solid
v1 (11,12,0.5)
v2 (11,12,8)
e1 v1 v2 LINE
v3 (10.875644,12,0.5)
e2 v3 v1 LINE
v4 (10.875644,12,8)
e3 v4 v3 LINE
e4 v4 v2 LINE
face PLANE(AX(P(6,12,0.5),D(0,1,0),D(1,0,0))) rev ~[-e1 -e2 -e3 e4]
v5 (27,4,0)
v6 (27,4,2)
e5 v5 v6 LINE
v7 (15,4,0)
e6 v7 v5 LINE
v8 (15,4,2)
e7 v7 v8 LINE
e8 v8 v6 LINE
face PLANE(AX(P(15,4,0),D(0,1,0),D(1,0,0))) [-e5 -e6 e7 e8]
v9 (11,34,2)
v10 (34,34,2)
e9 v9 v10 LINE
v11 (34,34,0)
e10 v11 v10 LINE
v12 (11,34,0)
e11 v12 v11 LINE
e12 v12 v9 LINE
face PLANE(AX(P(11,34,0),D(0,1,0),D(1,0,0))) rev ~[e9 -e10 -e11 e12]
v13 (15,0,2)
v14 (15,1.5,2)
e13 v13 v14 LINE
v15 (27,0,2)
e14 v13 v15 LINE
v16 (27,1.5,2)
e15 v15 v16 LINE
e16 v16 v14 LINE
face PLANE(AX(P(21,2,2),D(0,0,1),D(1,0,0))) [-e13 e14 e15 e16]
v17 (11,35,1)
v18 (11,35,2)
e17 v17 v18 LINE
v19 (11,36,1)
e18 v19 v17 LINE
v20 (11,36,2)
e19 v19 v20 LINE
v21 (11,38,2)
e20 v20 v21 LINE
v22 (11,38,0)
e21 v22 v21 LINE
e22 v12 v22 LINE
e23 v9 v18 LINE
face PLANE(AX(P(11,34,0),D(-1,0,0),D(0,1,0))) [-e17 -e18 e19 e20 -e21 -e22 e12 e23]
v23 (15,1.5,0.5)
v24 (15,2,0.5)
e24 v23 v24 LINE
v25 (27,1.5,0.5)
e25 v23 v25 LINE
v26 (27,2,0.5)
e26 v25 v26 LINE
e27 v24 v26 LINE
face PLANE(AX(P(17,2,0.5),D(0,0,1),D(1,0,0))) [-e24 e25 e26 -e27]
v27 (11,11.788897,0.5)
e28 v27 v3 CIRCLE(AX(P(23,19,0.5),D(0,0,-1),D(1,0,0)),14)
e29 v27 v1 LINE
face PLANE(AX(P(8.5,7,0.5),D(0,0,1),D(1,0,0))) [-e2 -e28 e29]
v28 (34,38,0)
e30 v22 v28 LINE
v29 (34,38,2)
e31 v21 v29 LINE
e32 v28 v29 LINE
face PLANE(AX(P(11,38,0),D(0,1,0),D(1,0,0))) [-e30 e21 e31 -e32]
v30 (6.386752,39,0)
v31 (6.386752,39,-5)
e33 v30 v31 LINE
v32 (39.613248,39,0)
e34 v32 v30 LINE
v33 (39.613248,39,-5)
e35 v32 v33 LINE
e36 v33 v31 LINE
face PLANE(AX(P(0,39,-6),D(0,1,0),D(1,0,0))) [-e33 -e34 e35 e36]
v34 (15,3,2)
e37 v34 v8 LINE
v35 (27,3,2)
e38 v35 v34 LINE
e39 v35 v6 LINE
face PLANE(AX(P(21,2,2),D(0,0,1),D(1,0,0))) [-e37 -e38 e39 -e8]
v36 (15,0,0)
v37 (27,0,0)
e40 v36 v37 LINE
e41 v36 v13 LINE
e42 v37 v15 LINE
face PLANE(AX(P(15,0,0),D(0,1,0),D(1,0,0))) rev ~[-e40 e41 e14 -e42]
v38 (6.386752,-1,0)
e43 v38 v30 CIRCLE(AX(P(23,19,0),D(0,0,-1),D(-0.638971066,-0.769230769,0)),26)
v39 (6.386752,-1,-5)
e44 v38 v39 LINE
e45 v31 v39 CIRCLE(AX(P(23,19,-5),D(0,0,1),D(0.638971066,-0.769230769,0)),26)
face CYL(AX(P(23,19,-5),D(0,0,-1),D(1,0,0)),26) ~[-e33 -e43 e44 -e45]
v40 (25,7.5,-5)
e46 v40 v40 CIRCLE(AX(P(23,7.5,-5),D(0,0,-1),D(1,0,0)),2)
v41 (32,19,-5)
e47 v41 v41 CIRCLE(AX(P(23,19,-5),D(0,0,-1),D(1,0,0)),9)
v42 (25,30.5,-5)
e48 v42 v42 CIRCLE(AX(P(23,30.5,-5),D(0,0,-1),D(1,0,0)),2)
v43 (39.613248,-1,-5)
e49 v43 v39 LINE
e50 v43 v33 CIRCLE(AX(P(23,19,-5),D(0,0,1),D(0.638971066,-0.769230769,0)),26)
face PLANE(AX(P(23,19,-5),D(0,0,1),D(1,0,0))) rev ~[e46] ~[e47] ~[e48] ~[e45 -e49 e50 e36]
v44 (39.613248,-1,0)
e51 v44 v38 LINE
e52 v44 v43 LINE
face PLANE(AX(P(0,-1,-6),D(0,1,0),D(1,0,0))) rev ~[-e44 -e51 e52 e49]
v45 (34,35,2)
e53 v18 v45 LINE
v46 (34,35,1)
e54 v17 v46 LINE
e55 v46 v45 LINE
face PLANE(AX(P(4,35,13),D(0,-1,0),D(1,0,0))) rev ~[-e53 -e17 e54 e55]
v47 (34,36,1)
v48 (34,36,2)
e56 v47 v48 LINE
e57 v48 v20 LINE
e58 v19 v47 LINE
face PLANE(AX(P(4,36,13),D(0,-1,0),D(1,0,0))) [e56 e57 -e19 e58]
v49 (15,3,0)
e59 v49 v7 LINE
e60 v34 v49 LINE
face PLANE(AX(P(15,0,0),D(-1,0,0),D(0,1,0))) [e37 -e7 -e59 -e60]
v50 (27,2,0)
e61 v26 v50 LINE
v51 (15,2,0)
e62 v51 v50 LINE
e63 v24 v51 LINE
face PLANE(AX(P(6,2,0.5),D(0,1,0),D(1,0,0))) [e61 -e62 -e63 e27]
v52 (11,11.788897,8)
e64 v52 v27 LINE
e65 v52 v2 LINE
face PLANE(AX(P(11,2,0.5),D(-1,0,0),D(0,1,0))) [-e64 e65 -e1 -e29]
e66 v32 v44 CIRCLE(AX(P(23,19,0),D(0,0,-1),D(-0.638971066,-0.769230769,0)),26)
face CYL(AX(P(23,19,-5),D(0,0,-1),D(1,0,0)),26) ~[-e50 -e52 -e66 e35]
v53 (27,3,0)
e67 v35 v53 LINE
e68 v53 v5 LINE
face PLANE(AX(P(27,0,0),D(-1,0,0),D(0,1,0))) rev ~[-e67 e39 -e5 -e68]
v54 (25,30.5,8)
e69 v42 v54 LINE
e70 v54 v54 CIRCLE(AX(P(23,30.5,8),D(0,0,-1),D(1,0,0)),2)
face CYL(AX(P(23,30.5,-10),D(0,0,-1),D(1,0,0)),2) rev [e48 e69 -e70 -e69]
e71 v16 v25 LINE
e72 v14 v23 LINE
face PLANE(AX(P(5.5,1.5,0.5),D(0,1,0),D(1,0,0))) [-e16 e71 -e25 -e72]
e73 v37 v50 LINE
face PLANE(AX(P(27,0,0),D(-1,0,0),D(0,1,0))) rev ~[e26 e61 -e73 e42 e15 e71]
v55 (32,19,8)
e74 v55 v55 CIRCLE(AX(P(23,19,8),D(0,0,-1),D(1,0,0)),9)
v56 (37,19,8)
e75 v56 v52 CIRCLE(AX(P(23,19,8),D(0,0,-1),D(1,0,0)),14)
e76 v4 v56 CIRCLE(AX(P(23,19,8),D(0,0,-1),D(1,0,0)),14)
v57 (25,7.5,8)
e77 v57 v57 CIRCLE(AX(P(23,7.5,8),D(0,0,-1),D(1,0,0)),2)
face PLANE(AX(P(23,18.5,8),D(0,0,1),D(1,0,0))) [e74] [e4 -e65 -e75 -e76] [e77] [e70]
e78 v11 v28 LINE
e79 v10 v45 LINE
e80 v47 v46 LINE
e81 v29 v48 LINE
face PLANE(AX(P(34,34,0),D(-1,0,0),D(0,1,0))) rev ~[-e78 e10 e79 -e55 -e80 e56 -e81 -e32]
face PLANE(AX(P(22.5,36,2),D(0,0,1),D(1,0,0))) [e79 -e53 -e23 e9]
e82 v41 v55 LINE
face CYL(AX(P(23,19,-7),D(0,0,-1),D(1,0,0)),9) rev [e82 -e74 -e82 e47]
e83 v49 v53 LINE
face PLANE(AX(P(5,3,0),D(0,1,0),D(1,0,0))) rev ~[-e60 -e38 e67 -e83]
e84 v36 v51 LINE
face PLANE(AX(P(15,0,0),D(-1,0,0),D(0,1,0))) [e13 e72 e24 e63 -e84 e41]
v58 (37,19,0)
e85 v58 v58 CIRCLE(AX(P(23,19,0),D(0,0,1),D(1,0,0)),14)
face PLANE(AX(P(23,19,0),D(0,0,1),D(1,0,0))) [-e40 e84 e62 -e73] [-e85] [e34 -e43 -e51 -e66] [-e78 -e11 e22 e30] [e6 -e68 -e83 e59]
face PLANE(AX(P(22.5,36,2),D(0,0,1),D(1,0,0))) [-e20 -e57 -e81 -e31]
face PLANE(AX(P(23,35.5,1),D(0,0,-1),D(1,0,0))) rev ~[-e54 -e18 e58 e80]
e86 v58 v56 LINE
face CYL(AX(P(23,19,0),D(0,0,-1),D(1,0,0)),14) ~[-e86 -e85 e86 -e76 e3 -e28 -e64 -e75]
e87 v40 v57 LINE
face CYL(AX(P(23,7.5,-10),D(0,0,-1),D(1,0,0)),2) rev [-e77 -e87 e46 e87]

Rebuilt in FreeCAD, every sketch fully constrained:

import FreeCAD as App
import Part
import Sketcher
from FreeCAD import Vector
Q = App.Units.Quantity

doc = App.newDocument("Part")
params = doc.addObject("Spreadsheet::Sheet", "Params")
for row, (alias, value) in enumerate([
    ("sketch1_diameter", "4 mm"),
    ("pad1_length", "22 mm"),
    ("sketch2_diameter", "4 mm"),
    ("pad2_length", "22 mm"),
    ("sketch3_width", "46 mm"),
    ("sketch3_height", "10 mm"),
    ("pad3_length", "10 mm"),
    ("sketch4_width", "46 mm"),
    ("sketch4_height", "10 mm"),
    ("pad4_length", "10 mm"),
    ("sketch5_width", "54 mm"),
    ("sketch5_height", "53 mm"),
    ("pad5_length", "15 mm"),
    ("sketch6_width", "5 mm"),
    ("sketch6_height", "10 mm"),
    ("pad6_length", "13 mm"),
    ("sketch7_width", "23 mm"),
    ("sketch7_height", "1 mm"),
    ("pad7_length", "13 mm"),
    ("sketch8_width", "25 mm"),
    ("sketch8_height", "1 mm"),
    ("pad8_length", "14 mm"),
    ("sketch9_width", "38 mm"),
    ("sketch9_height", "1 mm"),
    ("pad9_length", "12 mm"),
    ("sketch10_width", "34 mm"),
    ("sketch10_height", "1 mm"),
    ("pad10_length", "10 mm"),
    ("sketch11_diameter", "18 mm"),
    ("pad11_length", "28 mm"),
    ("sketch12_diameter", "52 mm"),
    ("pad12_length", "5 mm"),
    ("sketch13_diameter", "28 mm"),
    ("pad13_length", "14 mm"),
    ("sketch14_diameter", "52 mm"),
    ("pad14_length", "5 mm"),
    ("sketch15_width", "23 mm"),
    ("sketch15_height", "4 mm"),
    ("pad15_length", "2 mm"),
    ("sketch16_width", "12 mm"),
    ("sketch16_height", "4 mm"),
    ("pad16_length", "2 mm"),
], start=1):
    params.set(f"A{row}", alias)
    params.set(f"B{row}", "=" + value)
    params.setAlias(f"B{row}", alias)

body = doc.addObject("PartDesign::Body", "Body")

# Sketch on XY plane
sketch1 = body.newObject("Sketcher::SketchObject", "Sketch")
sketch1.AttachmentSupport = (doc.getObject("XY_Plane"), [""])
sketch1.MapMode = "FlatFace"
sketch1.AttachmentOffset = App.Placement(Vector(0, 0, -10), App.Rotation())
sketch1.addGeometry(Part.Circle(Vector(23, 7.5, 0), Vector(0, 0, 1), 2), False)
sketch1.addConstraint([
    Sketcher.Constraint("Diameter", 0, Q("4 mm")),
    Sketcher.Constraint("DistanceX", -1, 1, 0, 3, Q("23 mm")),
    Sketcher.Constraint("DistanceY", -1, 1, 0, 3, Q("7.5 mm")),
])
sketch1.setExpression("Constraints[0]", "Params.sketch1_diameter")
pad1 = body.newObject("PartDesign::Pad", "Pad")
pad1.Profile = sketch1
pad1.setExpression("Length", "Params.pad1_length")
body2 = doc.addObject("PartDesign::Body", "Body001")

# Sketch on XY plane
sketch2 = body2.newObject("Sketcher::SketchObject", "Sketch001")
sketch2.AttachmentSupport = (doc.getObject("XY_Plane001"), [""])
sketch2.MapMode = "FlatFace"
sketch2.AttachmentOffset = App.Placement(Vector(0, 0, -10), App.Rotation())
sketch2.addGeometry(Part.Circle(Vector(23, 30.5, 0), Vector(0, 0, 1), 2), False)
sketch2.addConstraint([
    Sketcher.Constraint("Diameter", 0, Q("4 mm")),
    Sketcher.Constraint("DistanceX", -1, 1, 0, 3, Q("23 mm")),
    Sketcher.Constraint("DistanceY", -1, 1, 0, 3, Q("30.5 mm")),
])
sketch2.setExpression("Constraints[0]", "Params.sketch2_diameter")
pad2 = body2.newObject("PartDesign::Pad", "Pad001")
pad2.Profile = sketch2
pad2.setExpression("Length", "Params.pad2_length")
body3 = doc.addObject("PartDesign::Body", "Body002")

# Sketch on XY plane
sketch3 = body3.newObject("Sketcher::SketchObject", "Sketch002")
sketch3.AttachmentSupport = (doc.getObject("XY_Plane002"), [""])
sketch3.MapMode = "FlatFace"
sketch3.AttachmentOffset = App.Placement(Vector(0, 0, -6), App.Rotation())
sketch3.addGeometry([
    Part.LineSegment(Vector(0, 49, 0), Vector(0, 39, 0)),
    Part.LineSegment(Vector(0, 39, 0), Vector(46, 39, 0)),
    Part.LineSegment(Vector(46, 39, 0), Vector(46, 49, 0)),
    Part.LineSegment(Vector(46, 49, 0), Vector(0, 49, 0)),
], False)
sketch3.addConstraint([
    Sketcher.Constraint("Coincident", 0, 2, 1, 1),
    Sketcher.Constraint("Coincident", 1, 2, 2, 1),
    Sketcher.Constraint("Coincident", 2, 2, 3, 1),
    Sketcher.Constraint("Coincident", 3, 2, 0, 1),
    Sketcher.Constraint("Vertical", 0),
    Sketcher.Constraint("Horizontal", 1),
    Sketcher.Constraint("Vertical", 2),
    Sketcher.Constraint("Horizontal", 3),
    Sketcher.Constraint("PointOnObject", 0, 2, -2),
    Sketcher.Constraint("DistanceX", 1, 1, 1, 2, Q("46 mm")),
    Sketcher.Constraint("DistanceY", 0, 2, 0, 1, Q("10 mm")),
    Sketcher.Constraint("DistanceY", -1, 1, 0, 2, Q("39 mm")),
])
sketch3.setExpression("Constraints[9]", "Params.sketch3_width")
sketch3.setExpression("Constraints[10]", "Params.sketch3_height")
pad3 = body3.newObject("PartDesign::Pad", "Pad002")
pad3.Profile = sketch3
pad3.setExpression("Length", "Params.pad3_length")
body4 = doc.addObject("PartDesign::Body", "Body003")

# Sketch on XY plane
sketch4 = body4.newObject("Sketcher::SketchObject", "Sketch003")
sketch4.AttachmentSupport = (doc.getObject("XY_Plane003"), [""])
sketch4.MapMode = "FlatFace"
sketch4.AttachmentOffset = App.Placement(Vector(0, 0, -6), App.Rotation())
sketch4.addGeometry([
    Part.LineSegment(Vector(0, -1, 0), Vector(0, -11, 0)),
    Part.LineSegment(Vector(0, -11, 0), Vector(46, -11, 0)),
    Part.LineSegment(Vector(46, -11, 0), Vector(46, -1, 0)),
    Part.LineSegment(Vector(46, -1, 0), Vector(0, -1, 0)),
], False)
sketch4.addConstraint([
    Sketcher.Constraint("Coincident", 0, 2, 1, 1),
    Sketcher.Constraint("Coincident", 1, 2, 2, 1),
    Sketcher.Constraint("Coincident", 2, 2, 3, 1),
    Sketcher.Constraint("Coincident", 3, 2, 0, 1),
    Sketcher.Constraint("Vertical", 0),
    Sketcher.Constraint("Horizontal", 1),
    Sketcher.Constraint("Vertical", 2),
    Sketcher.Constraint("Horizontal", 3),
    Sketcher.Constraint("PointOnObject", 0, 2, -2),
    Sketcher.Constraint("DistanceX", 1, 1, 1, 2, Q("46 mm")),
    Sketcher.Constraint("DistanceY", 0, 2, 0, 1, Q("10 mm")),
    Sketcher.Constraint("DistanceY", 0, 2, -1, 1, Q("11 mm")),
])
sketch4.setExpression("Constraints[9]", "Params.sketch4_width")
sketch4.setExpression("Constraints[10]", "Params.sketch4_height")
pad4 = body4.newObject("PartDesign::Pad", "Pad003")
pad4.Profile = sketch4
pad4.setExpression("Length", "Params.pad4_length")
body5 = doc.addObject("PartDesign::Body", "Body004")

# Sketch on XY plane
sketch5 = body5.newObject("Sketcher::SketchObject", "Sketch004")
sketch5.AttachmentSupport = (doc.getObject("XY_Plane004"), [""])
sketch5.MapMode = "FlatFace"
sketch5.AttachmentOffset = App.Placement(Vector(0, 0, 8), App.Rotation())
sketch5.addGeometry([
    Part.LineSegment(Vector(-4, 45, 0), Vector(-4, -8, 0)),
    Part.LineSegment(Vector(-4, -8, 0), Vector(50, -8, 0)),
    Part.LineSegment(Vector(50, -8, 0), Vector(50, 45, 0)),
    Part.LineSegment(Vector(50, 45, 0), Vector(-4, 45, 0)),
], False)
sketch5.addConstraint([
    Sketcher.Constraint("Coincident", 0, 2, 1, 1),
    Sketcher.Constraint("Coincident", 1, 2, 2, 1),
    Sketcher.Constraint("Coincident", 2, 2, 3, 1),
    Sketcher.Constraint("Coincident", 3, 2, 0, 1),
    Sketcher.Constraint("Vertical", 0),
    Sketcher.Constraint("Horizontal", 1),
    Sketcher.Constraint("Vertical", 2),
    Sketcher.Constraint("Horizontal", 3),
    Sketcher.Constraint("DistanceX", 1, 1, 1, 2, Q("54 mm")),
    Sketcher.Constraint("DistanceY", 0, 2, 0, 1, Q("53 mm")),
    Sketcher.Constraint("DistanceX", 0, 2, -1, 1, Q("4 mm")),
    Sketcher.Constraint("DistanceY", 0, 2, -1, 1, Q("8 mm")),
])
sketch5.setExpression("Constraints[8]", "Params.sketch5_width")
sketch5.setExpression("Constraints[9]", "Params.sketch5_height")
pad5 = body5.newObject("PartDesign::Pad", "Pad004")
pad5.Profile = sketch5
pad5.setExpression("Length", "Params.pad5_length")
body6 = doc.addObject("PartDesign::Body", "Body005")

# Sketch on XY plane
sketch6 = body6.newObject("Sketcher::SketchObject", "Sketch005")
sketch6.AttachmentSupport = (doc.getObject("XY_Plane005"), [""])
sketch6.MapMode = "FlatFace"
sketch6.AttachmentOffset = App.Placement(Vector(0, 0, 0.5), App.Rotation())
sketch6.addGeometry([
    Part.LineSegment(Vector(1, 10, 0), Vector(1, 0, 0)),
    Part.LineSegment(Vector(1, 0, 0), Vector(6, 0, 0)),
    Part.LineSegment(Vector(6, 0, 0), Vector(6, 10, 0)),
    Part.LineSegment(Vector(6, 10, 0), Vector(1, 10, 0)),
], False)
sketch6.addConstraint([
    Sketcher.Constraint("Coincident", 0, 2, 1, 1),
    Sketcher.Constraint("Coincident", 1, 2, 2, 1),
    Sketcher.Constraint("Coincident", 2, 2, 3, 1),
    Sketcher.Constraint("Coincident", 3, 2, 0, 1),
    Sketcher.Constraint("Vertical", 0),
    Sketcher.Constraint("Horizontal", 1),
    Sketcher.Constraint("Vertical", 2),
    Sketcher.Constraint("Horizontal", 3),
    Sketcher.Constraint("PointOnObject", 0, 2, -1),
    Sketcher.Constraint("DistanceX", 1, 1, 1, 2, Q("5 mm")),
    Sketcher.Constraint("DistanceY", 0, 2, 0, 1, Q("10 mm")),
    Sketcher.Constraint("DistanceX", -1, 1, 0, 2, Q("1 mm")),
])
sketch6.setExpression("Constraints[9]", "Params.sketch6_width")
sketch6.setExpression("Constraints[10]", "Params.sketch6_height")
pad6 = body6.newObject("PartDesign::Pad", "Pad005")
pad6.Profile = sketch6
pad6.setExpression("Length", "Params.pad6_length")
body7 = doc.addObject("PartDesign::Body", "Body006")

# Sketch on XY plane
sketch7 = body7.newObject("Sketcher::SketchObject", "Sketch006")
sketch7.AttachmentSupport = (doc.getObject("XY_Plane006"), [""])
sketch7.MapMode = "FlatFace"
sketch7.AttachmentOffset = App.Placement(Vector(0, 0, 0.5), App.Rotation())
sketch7.addGeometry([
    Part.LineSegment(Vector(0.5, 0.5, 0), Vector(0.5, -0.5, 0)),
    Part.LineSegment(Vector(0.5, -0.5, 0), Vector(23.5, -0.5, 0)),
    Part.LineSegment(Vector(23.5, -0.5, 0), Vector(23.5, 0.5, 0)),
    Part.LineSegment(Vector(23.5, 0.5, 0), Vector(0.5, 0.5, 0)),
], False)
sketch7.addConstraint([
    Sketcher.Constraint("Coincident", 0, 2, 1, 1),
    Sketcher.Constraint("Coincident", 1, 2, 2, 1),
    Sketcher.Constraint("Coincident", 2, 2, 3, 1),
    Sketcher.Constraint("Coincident", 3, 2, 0, 1),
    Sketcher.Constraint("Vertical", 0),
    Sketcher.Constraint("Horizontal", 1),
    Sketcher.Constraint("Vertical", 2),
    Sketcher.Constraint("Horizontal", 3),
    Sketcher.Constraint("DistanceX", 1, 1, 1, 2, Q("23 mm")),
    Sketcher.Constraint("DistanceY", 0, 2, 0, 1, Q("1 mm")),
    Sketcher.Constraint("DistanceX", -1, 1, 0, 2, Q("0.5 mm")),
    Sketcher.Constraint("DistanceY", 0, 2, -1, 1, Q("0.5 mm")),
])
sketch7.setExpression("Constraints[8]", "Params.sketch7_width")
sketch7.setExpression("Constraints[9]", "Params.sketch7_height")
pad7 = body7.newObject("PartDesign::Pad", "Pad006")
pad7.Profile = sketch7
pad7.setExpression("Length", "Params.pad7_length")
body8 = doc.addObject("PartDesign::Body", "Body007")

# Sketch on XY plane
sketch8 = body8.newObject("Sketcher::SketchObject", "Sketch007")
sketch8.AttachmentSupport = (doc.getObject("XY_Plane007"), [""])
sketch8.MapMode = "FlatFace"
sketch8.addGeometry([
    Part.LineSegment(Vector(0, 1, 0), Vector(0, 0, 0)),
    Part.LineSegment(Vector(0, 0, 0), Vector(25, 0, 0)),
    Part.LineSegment(Vector(25, 0, 0), Vector(25, 1, 0)),
    Part.LineSegment(Vector(25, 1, 0), Vector(0, 1, 0)),
], False)
sketch8.addConstraint([
    Sketcher.Constraint("Coincident", 0, 2, 1, 1),
    Sketcher.Constraint("Coincident", 1, 2, 2, 1),
    Sketcher.Constraint("Coincident", 2, 2, 3, 1),
    Sketcher.Constraint("Coincident", 3, 2, 0, 1),
    Sketcher.Constraint("Vertical", 0),
    Sketcher.Constraint("Horizontal", 1),
    Sketcher.Constraint("Vertical", 2),
    Sketcher.Constraint("Horizontal", 3),
    Sketcher.Constraint("Coincident", 0, 2, -1, 1),
    Sketcher.Constraint("DistanceX", 1, 1, 1, 2, Q("25 mm")),
    Sketcher.Constraint("DistanceY", 0, 2, 0, 1, Q("1 mm")),
])
sketch8.setExpression("Constraints[9]", "Params.sketch8_width")
sketch8.setExpression("Constraints[10]", "Params.sketch8_height")
pad8 = body8.newObject("PartDesign::Pad", "Pad007")
pad8.Profile = sketch8
pad8.setExpression("Length", "Params.pad8_length")
doc.recompute()

boolean = body8.newObject("PartDesign::Boolean", "Boolean")
boolean.Type = "Fuse"
boolean.addObjects([body6])
doc.recompute()

boolean2 = body8.newObject("PartDesign::Boolean", "Boolean001")
boolean2.Type = "Fuse"
boolean2.addObjects([body7])
body9 = doc.addObject("PartDesign::Body", "Body008")
doc.recompute()

body8.Placement = App.Placement(Vector(5, 2, 0), App.Rotation(Vector(0, 0, 1), 0))
boolean3 = body9.newObject("PartDesign::Boolean", "Boolean002")
boolean3.Type = "Fuse"
boolean3.addObjects([body8])
body10 = doc.addObject("PartDesign::Body", "Body009")

# Sketch on XY plane
sketch9 = body10.newObject("Sketcher::SketchObject", "Sketch008")
sketch9.AttachmentSupport = (doc.getObject("XY_Plane009"), [""])
sketch9.MapMode = "FlatFace"
sketch9.addGeometry([
    Part.LineSegment(Vector(0, 1, 0), Vector(0, 0, 0)),
    Part.LineSegment(Vector(0, 0, 0), Vector(38, 0, 0)),
    Part.LineSegment(Vector(38, 0, 0), Vector(38, 1, 0)),
    Part.LineSegment(Vector(38, 1, 0), Vector(0, 1, 0)),
], False)
sketch9.addConstraint([
    Sketcher.Constraint("Coincident", 0, 2, 1, 1),
    Sketcher.Constraint("Coincident", 1, 2, 2, 1),
    Sketcher.Constraint("Coincident", 2, 2, 3, 1),
    Sketcher.Constraint("Coincident", 3, 2, 0, 1),
    Sketcher.Constraint("Vertical", 0),
    Sketcher.Constraint("Horizontal", 1),
    Sketcher.Constraint("Vertical", 2),
    Sketcher.Constraint("Horizontal", 3),
    Sketcher.Constraint("Coincident", 0, 2, -1, 1),
    Sketcher.Constraint("DistanceX", 1, 1, 1, 2, Q("38 mm")),
    Sketcher.Constraint("DistanceY", 0, 2, 0, 1, Q("1 mm")),
])
sketch9.setExpression("Constraints[9]", "Params.sketch9_width")
sketch9.setExpression("Constraints[10]", "Params.sketch9_height")
pad9 = body10.newObject("PartDesign::Pad", "Pad008")
pad9.Profile = sketch9
pad9.setExpression("Length", "Params.pad9_length")
body11 = doc.addObject("PartDesign::Body", "Body010")

# Sketch on XY plane
sketch10 = body11.newObject("Sketcher::SketchObject", "Sketch009")
sketch10.AttachmentSupport = (doc.getObject("XY_Plane010"), [""])
sketch10.MapMode = "FlatFace"
sketch10.AttachmentOffset = App.Placement(Vector(0, 0, 1), App.Rotation())
sketch10.addGeometry([
    Part.LineSegment(Vector(3, 0.5, 0), Vector(3, -0.5, 0)),
    Part.LineSegment(Vector(3, -0.5, 0), Vector(37, -0.5, 0)),
    Part.LineSegment(Vector(37, -0.5, 0), Vector(37, 0.5, 0)),
    Part.LineSegment(Vector(37, 0.5, 0), Vector(3, 0.5, 0)),
], False)
sketch10.addConstraint([
    Sketcher.Constraint("Coincident", 0, 2, 1, 1),
    Sketcher.Constraint("Coincident", 1, 2, 2, 1),
    Sketcher.Constraint("Coincident", 2, 2, 3, 1),
    Sketcher.Constraint("Coincident", 3, 2, 0, 1),
    Sketcher.Constraint("Vertical", 0),
    Sketcher.Constraint("Horizontal", 1),
    Sketcher.Constraint("Vertical", 2),
    Sketcher.Constraint("Horizontal", 3),
    Sketcher.Constraint("DistanceX", 1, 1, 1, 2, Q("34 mm")),
    Sketcher.Constraint("DistanceY", 0, 2, 0, 1, Q("1 mm")),
    Sketcher.Constraint("DistanceX", -1, 1, 0, 2, Q("3 mm")),
    Sketcher.Constraint("DistanceY", 0, 2, -1, 1, Q("0.5 mm")),
])
sketch10.setExpression("Constraints[8]", "Params.sketch10_width")
sketch10.setExpression("Constraints[9]", "Params.sketch10_height")
pad10 = body11.newObject("PartDesign::Pad", "Pad009")
pad10.Profile = sketch10
pad10.setExpression("Length", "Params.pad10_length")
doc.recompute()

boolean4 = body11.newObject("PartDesign::Boolean", "Boolean003")
boolean4.Type = "Fuse"
boolean4.addObjects([body10])
body12 = doc.addObject("PartDesign::Body", "Body011")
doc.recompute()

body11.Placement = App.Placement(Vector(4, 36, 13), App.Rotation(Vector(1, 0, 0), 180))
boolean5 = body12.newObject("PartDesign::Boolean", "Boolean004")
boolean5.Type = "Fuse"
boolean5.addObjects([body11])
body13 = doc.addObject("PartDesign::Body", "Body012")

# Sketch on XY plane
sketch11 = body13.newObject("Sketcher::SketchObject", "Sketch010")
sketch11.AttachmentSupport = (doc.getObject("XY_Plane012"), [""])
sketch11.MapMode = "FlatFace"
sketch11.AttachmentOffset = App.Placement(Vector(0, 0, -7), App.Rotation())
sketch11.addGeometry(Part.Circle(Vector(23, 19, 0), Vector(0, 0, 1), 9), False)
sketch11.addConstraint([
    Sketcher.Constraint("Diameter", 0, Q("18 mm")),
    Sketcher.Constraint("DistanceX", -1, 1, 0, 3, Q("23 mm")),
    Sketcher.Constraint("DistanceY", -1, 1, 0, 3, Q("19 mm")),
])
sketch11.setExpression("Constraints[0]", "Params.sketch11_diameter")
pad11 = body13.newObject("PartDesign::Pad", "Pad010")
pad11.Profile = sketch11
pad11.setExpression("Length", "Params.pad11_length")
body14 = doc.addObject("PartDesign::Body", "Body013")

# Sketch on XY plane
sketch12 = body14.newObject("Sketcher::SketchObject", "Sketch011")
sketch12.AttachmentSupport = (doc.getObject("XY_Plane013"), [""])
sketch12.MapMode = "FlatFace"
sketch12.AttachmentOffset = App.Placement(Vector(0, 0, -5), App.Rotation())
sketch12.addGeometry(Part.Circle(Vector(23, 19, 0), Vector(0, 0, 1), 26), False)
sketch12.addConstraint([
    Sketcher.Constraint("Diameter", 0, Q("52 mm")),
    Sketcher.Constraint("DistanceX", -1, 1, 0, 3, Q("23 mm")),
    Sketcher.Constraint("DistanceY", -1, 1, 0, 3, Q("19 mm")),
])
sketch12.setExpression("Constraints[0]", "Params.sketch12_diameter")
pad12 = body14.newObject("PartDesign::Pad", "Pad011")
pad12.Profile = sketch12
pad12.setExpression("Length", "Params.pad12_length")
body15 = doc.addObject("PartDesign::Body", "Body014")

# Sketch on XY plane
sketch13 = body15.newObject("Sketcher::SketchObject", "Sketch012")
sketch13.AttachmentSupport = (doc.getObject("XY_Plane014"), [""])
sketch13.MapMode = "FlatFace"
sketch13.addGeometry(Part.Circle(Vector(23, 19, 0), Vector(0, 0, 1), 14), False)
sketch13.addConstraint([
    Sketcher.Constraint("Diameter", 0, Q("28 mm")),
    Sketcher.Constraint("DistanceX", -1, 1, 0, 3, Q("23 mm")),
    Sketcher.Constraint("DistanceY", -1, 1, 0, 3, Q("19 mm")),
])
sketch13.setExpression("Constraints[0]", "Params.sketch13_diameter")
pad13 = body15.newObject("PartDesign::Pad", "Pad012")
pad13.Profile = sketch13
pad13.setExpression("Length", "Params.pad13_length")
body16 = doc.addObject("PartDesign::Body", "Body015")
body16.AllowCompound = True

# Sketch on XY plane
sketch14 = body16.newObject("Sketcher::SketchObject", "Sketch013")
sketch14.AttachmentSupport = (doc.getObject("XY_Plane015"), [""])
sketch14.MapMode = "FlatFace"
sketch14.AttachmentOffset = App.Placement(Vector(0, 0, 14), App.Rotation())
sketch14.addGeometry(Part.Circle(Vector(23, 19, 0), Vector(0, 0, 1), 26), False)
sketch14.addConstraint([
    Sketcher.Constraint("Diameter", 0, Q("52 mm")),
    Sketcher.Constraint("DistanceX", -1, 1, 0, 3, Q("23 mm")),
    Sketcher.Constraint("DistanceY", -1, 1, 0, 3, Q("19 mm")),
])
sketch14.setExpression("Constraints[0]", "Params.sketch14_diameter")
pad14 = body16.newObject("PartDesign::Pad", "Pad013")
pad14.Profile = sketch14
pad14.setExpression("Length", "Params.pad14_length")
doc.recompute()

boolean6 = body16.newObject("PartDesign::Boolean", "Boolean005")
boolean6.Type = "Fuse"
boolean6.addObjects([body14])
doc.recompute()

boolean7 = body16.newObject("PartDesign::Boolean", "Boolean006")
boolean7.Type = "Fuse"
boolean7.addObjects([body15])
doc.recompute()

boolean8 = body16.newObject("PartDesign::Boolean", "Boolean007")
boolean8.Type = "Cut"
boolean8.addObjects([body13])
body17 = doc.addObject("PartDesign::Body", "Body016")

# Sketch on XY plane
sketch15 = body17.newObject("Sketcher::SketchObject", "Sketch014")
sketch15.AttachmentSupport = (doc.getObject("XY_Plane016"), [""])
sketch15.MapMode = "FlatFace"
sketch15.addGeometry([
    Part.LineSegment(Vector(11, 38, 0), Vector(11, 34, 0)),
    Part.LineSegment(Vector(11, 34, 0), Vector(34, 34, 0)),
    Part.LineSegment(Vector(34, 34, 0), Vector(34, 38, 0)),
    Part.LineSegment(Vector(34, 38, 0), Vector(11, 38, 0)),
], False)
sketch15.addConstraint([
    Sketcher.Constraint("Coincident", 0, 2, 1, 1),
    Sketcher.Constraint("Coincident", 1, 2, 2, 1),
    Sketcher.Constraint("Coincident", 2, 2, 3, 1),
    Sketcher.Constraint("Coincident", 3, 2, 0, 1),
    Sketcher.Constraint("Vertical", 0),
    Sketcher.Constraint("Horizontal", 1),
    Sketcher.Constraint("Vertical", 2),
    Sketcher.Constraint("Horizontal", 3),
    Sketcher.Constraint("DistanceX", 1, 1, 1, 2, Q("23 mm")),
    Sketcher.Constraint("DistanceY", 0, 2, 0, 1, Q("4 mm")),
    Sketcher.Constraint("DistanceX", -1, 1, 0, 2, Q("11 mm")),
    Sketcher.Constraint("DistanceY", -1, 1, 0, 2, Q("34 mm")),
])
sketch15.setExpression("Constraints[8]", "Params.sketch15_width")
sketch15.setExpression("Constraints[9]", "Params.sketch15_height")
pad15 = body17.newObject("PartDesign::Pad", "Pad014")
pad15.Profile = sketch15
pad15.setExpression("Length", "Params.pad15_length")
doc.recompute()

boolean9 = body17.newObject("PartDesign::Boolean", "Boolean008")
boolean9.Type = "Fuse"
boolean9.addObjects([body16])
doc.recompute()

boolean10 = body17.newObject("PartDesign::Boolean", "Boolean009")
boolean10.Type = "Cut"
boolean10.addObjects([body12])
body18 = doc.addObject("PartDesign::Body", "Body017")

# Sketch on XY plane
sketch16 = body18.newObject("Sketcher::SketchObject", "Sketch015")
sketch16.AttachmentSupport = (doc.getObject("XY_Plane017"), [""])
sketch16.MapMode = "FlatFace"
sketch16.addGeometry([
    Part.LineSegment(Vector(15, 4, 0), Vector(15, 0, 0)),
    Part.LineSegment(Vector(15, 0, 0), Vector(27, 0, 0)),
    Part.LineSegment(Vector(27, 0, 0), Vector(27, 4, 0)),
    Part.LineSegment(Vector(27, 4, 0), Vector(15, 4, 0)),
], False)
sketch16.addConstraint([
    Sketcher.Constraint("Coincident", 0, 2, 1, 1),
    Sketcher.Constraint("Coincident", 1, 2, 2, 1),
    Sketcher.Constraint("Coincident", 2, 2, 3, 1),
    Sketcher.Constraint("Coincident", 3, 2, 0, 1),
    Sketcher.Constraint("Vertical", 0),
    Sketcher.Constraint("Horizontal", 1),
    Sketcher.Constraint("Vertical", 2),
    Sketcher.Constraint("Horizontal", 3),
    Sketcher.Constraint("PointOnObject", 0, 2, -1),
    Sketcher.Constraint("DistanceX", 1, 1, 1, 2, Q("12 mm")),
    Sketcher.Constraint("DistanceY", 0, 2, 0, 1, Q("4 mm")),
    Sketcher.Constraint("DistanceX", -1, 1, 0, 2, Q("15 mm")),
])
sketch16.setExpression("Constraints[9]", "Params.sketch16_width")
sketch16.setExpression("Constraints[10]", "Params.sketch16_height")
pad16 = body18.newObject("PartDesign::Pad", "Pad015")
pad16.Profile = sketch16
pad16.setExpression("Length", "Params.pad16_length")
doc.recompute()

boolean11 = body18.newObject("PartDesign::Boolean", "Boolean010")
boolean11.Type = "Fuse"
boolean11.addObjects([body17])
doc.recompute()

boolean12 = body18.newObject("PartDesign::Boolean", "Boolean011")
boolean12.Type = "Cut"
boolean12.addObjects([body9])
doc.recompute()

boolean13 = body18.newObject("PartDesign::Boolean", "Boolean012")
boolean13.Type = "Cut"
boolean13.addObjects([body5])
doc.recompute()

boolean14 = body18.newObject("PartDesign::Boolean", "Boolean013")
boolean14.Type = "Cut"
boolean14.addObjects([body4])
doc.recompute()

boolean15 = body18.newObject("PartDesign::Boolean", "Boolean014")
boolean15.Type = "Cut"
boolean15.addObjects([body3])
doc.recompute()

boolean16 = body18.newObject("PartDesign::Boolean", "Boolean015")
boolean16.Type = "Cut"
boolean16.addObjects([body2])
doc.recompute()

boolean17 = body18.newObject("PartDesign::Boolean", "Boolean016")
boolean17.Type = "Cut"
boolean17.addObjects([body])

doc.recompute()
